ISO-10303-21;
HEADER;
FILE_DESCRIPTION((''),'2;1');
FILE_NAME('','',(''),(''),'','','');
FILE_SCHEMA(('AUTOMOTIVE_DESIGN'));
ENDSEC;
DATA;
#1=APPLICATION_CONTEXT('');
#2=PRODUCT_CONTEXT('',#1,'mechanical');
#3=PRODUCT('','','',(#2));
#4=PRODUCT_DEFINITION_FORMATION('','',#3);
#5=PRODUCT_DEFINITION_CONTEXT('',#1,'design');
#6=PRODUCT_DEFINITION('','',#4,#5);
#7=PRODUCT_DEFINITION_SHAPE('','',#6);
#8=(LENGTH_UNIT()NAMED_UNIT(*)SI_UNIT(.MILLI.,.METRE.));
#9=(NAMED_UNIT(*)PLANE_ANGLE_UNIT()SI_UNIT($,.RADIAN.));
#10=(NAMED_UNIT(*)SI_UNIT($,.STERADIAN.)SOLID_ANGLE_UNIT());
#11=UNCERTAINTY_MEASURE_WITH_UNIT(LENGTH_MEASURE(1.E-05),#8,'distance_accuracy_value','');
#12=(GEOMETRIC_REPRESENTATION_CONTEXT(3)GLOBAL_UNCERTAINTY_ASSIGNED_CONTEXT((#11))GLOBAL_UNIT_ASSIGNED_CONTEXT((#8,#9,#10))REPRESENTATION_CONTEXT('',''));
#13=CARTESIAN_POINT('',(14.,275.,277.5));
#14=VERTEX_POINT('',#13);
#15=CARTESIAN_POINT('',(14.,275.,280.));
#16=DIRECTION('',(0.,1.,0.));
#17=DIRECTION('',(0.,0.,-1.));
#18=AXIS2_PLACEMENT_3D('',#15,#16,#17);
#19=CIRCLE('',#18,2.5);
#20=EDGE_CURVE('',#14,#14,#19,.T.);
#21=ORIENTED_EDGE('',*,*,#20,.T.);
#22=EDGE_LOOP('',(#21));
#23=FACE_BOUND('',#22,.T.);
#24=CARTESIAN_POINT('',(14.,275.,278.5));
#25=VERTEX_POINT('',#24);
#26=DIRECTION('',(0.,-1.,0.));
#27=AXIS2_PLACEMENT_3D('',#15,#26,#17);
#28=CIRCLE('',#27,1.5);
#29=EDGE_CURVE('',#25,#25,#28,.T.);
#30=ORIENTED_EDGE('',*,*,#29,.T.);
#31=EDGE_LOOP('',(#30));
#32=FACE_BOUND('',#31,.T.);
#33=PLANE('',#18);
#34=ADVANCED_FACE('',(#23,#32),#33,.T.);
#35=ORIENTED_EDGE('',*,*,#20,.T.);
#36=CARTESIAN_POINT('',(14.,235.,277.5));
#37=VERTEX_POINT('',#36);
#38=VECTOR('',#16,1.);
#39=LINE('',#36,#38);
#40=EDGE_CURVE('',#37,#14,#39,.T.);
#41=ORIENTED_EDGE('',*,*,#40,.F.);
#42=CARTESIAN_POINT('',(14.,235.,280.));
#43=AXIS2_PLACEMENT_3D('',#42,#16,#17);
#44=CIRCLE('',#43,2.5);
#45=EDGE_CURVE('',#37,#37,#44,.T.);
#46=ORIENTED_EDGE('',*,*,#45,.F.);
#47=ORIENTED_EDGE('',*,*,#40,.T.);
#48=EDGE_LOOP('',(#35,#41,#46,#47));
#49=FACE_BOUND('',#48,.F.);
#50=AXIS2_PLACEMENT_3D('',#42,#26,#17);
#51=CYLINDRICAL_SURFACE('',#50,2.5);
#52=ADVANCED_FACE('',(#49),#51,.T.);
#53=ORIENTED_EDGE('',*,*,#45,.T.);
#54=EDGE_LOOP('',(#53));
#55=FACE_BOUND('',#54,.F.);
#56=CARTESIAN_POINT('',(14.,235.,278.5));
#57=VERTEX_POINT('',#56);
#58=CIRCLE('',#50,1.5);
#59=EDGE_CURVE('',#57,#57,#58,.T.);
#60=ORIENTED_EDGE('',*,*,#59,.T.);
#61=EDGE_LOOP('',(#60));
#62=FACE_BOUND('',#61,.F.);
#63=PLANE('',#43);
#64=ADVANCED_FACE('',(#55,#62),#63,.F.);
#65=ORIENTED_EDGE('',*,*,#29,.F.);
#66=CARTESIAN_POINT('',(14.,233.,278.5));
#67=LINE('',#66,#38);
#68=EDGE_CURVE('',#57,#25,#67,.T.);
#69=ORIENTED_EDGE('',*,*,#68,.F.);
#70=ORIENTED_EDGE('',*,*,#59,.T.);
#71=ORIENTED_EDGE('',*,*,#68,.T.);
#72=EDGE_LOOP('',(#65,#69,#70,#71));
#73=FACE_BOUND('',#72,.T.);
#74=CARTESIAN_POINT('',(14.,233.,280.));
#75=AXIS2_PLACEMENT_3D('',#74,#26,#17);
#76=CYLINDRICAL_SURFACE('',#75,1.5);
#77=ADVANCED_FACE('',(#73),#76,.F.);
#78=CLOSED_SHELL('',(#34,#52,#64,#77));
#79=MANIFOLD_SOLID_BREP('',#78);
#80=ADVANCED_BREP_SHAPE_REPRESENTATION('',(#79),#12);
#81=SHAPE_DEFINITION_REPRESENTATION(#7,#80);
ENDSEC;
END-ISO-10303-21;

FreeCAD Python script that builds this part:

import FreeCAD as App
import Part
import Sketcher

doc = App.newDocument("Part")
params = doc.addObject("Spreadsheet::Sheet", "Params")
for row, (alias, value) in enumerate([
    ("sketch1_diameter", "3 mm"),
    ("pad1_length", "44 mm"),
    ("sketch2_diameter", "5 mm"),
    ("pad2_length", "40 mm"),
], start=1):
    params.set(f"A{row}", alias)
    params.set(f"B{row}", "=" + value)
    params.setAlias(f"B{row}", alias)

body = doc.addObject("PartDesign::Body", "Body")

# Sketch on XY plane
sketch1 = body.newObject("Sketcher::SketchObject", "Sketch")
sketch1.AttachmentSupport = (doc.getObject("XY_Plane"), [""])
sketch1.MapMode = "FlatFace"
sketch1.addGeometry(Part.Circle(App.Vector(0, 0, 0), App.Vector(0, 0, 1), 1.5), False)
sketch1.addConstraint(Sketcher.Constraint("Coincident", 0, 3, -1, 1))
sketch1.addConstraint(Sketcher.Constraint("Diameter", 0, 3.0))
sketch1.setExpression("Constraints[1]", "Params.sketch1_diameter")
pad1 = body.newObject("PartDesign::Pad", "Pad")
pad1.Profile = sketch1
pad1.setExpression("Length", "Params.pad1_length")
body2 = doc.addObject("PartDesign::Body", "Body001")
doc.recompute()

body.Placement = App.Placement(App.Vector(0, 0, 0), App.Rotation(App.Vector(0, 1, 0), 90))
boolean = body2.newObject("PartDesign::Boolean", "Boolean")
boolean.Type = "Fuse"
boolean.addObjects([body])
body3 = doc.addObject("PartDesign::Body", "Body002")
doc.recompute()

body2.Placement = App.Placement(App.Vector(-2, 0, 0), App.Rotation(App.Vector(0, 0, 1), 0))
boolean2 = body3.newObject("PartDesign::Boolean", "Boolean001")
boolean2.Type = "Fuse"
boolean2.addObjects([body2])
body4 = doc.addObject("PartDesign::Body", "Body003")

# Sketch on XY plane
sketch2 = body4.newObject("Sketcher::SketchObject", "Sketch001")
sketch2.AttachmentSupport = (doc.getObject("XY_Plane003"), [""])
sketch2.MapMode = "FlatFace"
sketch2.addGeometry(Part.Circle(App.Vector(0, 0, 0), App.Vector(0, 0, 1), 2.5), False)
sketch2.addConstraint(Sketcher.Constraint("Coincident", 0, 3, -1, 1))
sketch2.addConstraint(Sketcher.Constraint("Diameter", 0, 5.0))
sketch2.setExpression("Constraints[1]", "Params.sketch2_diameter")
pad2 = body4.newObject("PartDesign::Pad", "Pad001")
pad2.Profile = sketch2
pad2.setExpression("Length", "Params.pad2_length")
body5 = doc.addObject("PartDesign::Body", "Body004")
doc.recompute()

body4.Placement = App.Placement(App.Vector(0, 0, 0), App.Rotation(App.Vector(0, 1, 0), 90))
boolean3 = body5.newObject("PartDesign::Boolean", "Boolean002")
boolean3.Type = "Fuse"
boolean3.addObjects([body4])
doc.recompute()

boolean4 = body5.newObject("PartDesign::Boolean", "Boolean003")
boolean4.Type = "Cut"
boolean4.addObjects([body3])
body6 = doc.addObject("PartDesign::Body", "Body005")
doc.recompute()

body5.Placement = App.Placement(App.Vector(14, 235, 280), App.Rotation(App.Vector(0, 0, 1), 90))
boolean5 = body6.newObject("PartDesign::Boolean", "Boolean004")
boolean5.Type = "Fuse"
boolean5.addObjects([body5])

doc.recompute()
